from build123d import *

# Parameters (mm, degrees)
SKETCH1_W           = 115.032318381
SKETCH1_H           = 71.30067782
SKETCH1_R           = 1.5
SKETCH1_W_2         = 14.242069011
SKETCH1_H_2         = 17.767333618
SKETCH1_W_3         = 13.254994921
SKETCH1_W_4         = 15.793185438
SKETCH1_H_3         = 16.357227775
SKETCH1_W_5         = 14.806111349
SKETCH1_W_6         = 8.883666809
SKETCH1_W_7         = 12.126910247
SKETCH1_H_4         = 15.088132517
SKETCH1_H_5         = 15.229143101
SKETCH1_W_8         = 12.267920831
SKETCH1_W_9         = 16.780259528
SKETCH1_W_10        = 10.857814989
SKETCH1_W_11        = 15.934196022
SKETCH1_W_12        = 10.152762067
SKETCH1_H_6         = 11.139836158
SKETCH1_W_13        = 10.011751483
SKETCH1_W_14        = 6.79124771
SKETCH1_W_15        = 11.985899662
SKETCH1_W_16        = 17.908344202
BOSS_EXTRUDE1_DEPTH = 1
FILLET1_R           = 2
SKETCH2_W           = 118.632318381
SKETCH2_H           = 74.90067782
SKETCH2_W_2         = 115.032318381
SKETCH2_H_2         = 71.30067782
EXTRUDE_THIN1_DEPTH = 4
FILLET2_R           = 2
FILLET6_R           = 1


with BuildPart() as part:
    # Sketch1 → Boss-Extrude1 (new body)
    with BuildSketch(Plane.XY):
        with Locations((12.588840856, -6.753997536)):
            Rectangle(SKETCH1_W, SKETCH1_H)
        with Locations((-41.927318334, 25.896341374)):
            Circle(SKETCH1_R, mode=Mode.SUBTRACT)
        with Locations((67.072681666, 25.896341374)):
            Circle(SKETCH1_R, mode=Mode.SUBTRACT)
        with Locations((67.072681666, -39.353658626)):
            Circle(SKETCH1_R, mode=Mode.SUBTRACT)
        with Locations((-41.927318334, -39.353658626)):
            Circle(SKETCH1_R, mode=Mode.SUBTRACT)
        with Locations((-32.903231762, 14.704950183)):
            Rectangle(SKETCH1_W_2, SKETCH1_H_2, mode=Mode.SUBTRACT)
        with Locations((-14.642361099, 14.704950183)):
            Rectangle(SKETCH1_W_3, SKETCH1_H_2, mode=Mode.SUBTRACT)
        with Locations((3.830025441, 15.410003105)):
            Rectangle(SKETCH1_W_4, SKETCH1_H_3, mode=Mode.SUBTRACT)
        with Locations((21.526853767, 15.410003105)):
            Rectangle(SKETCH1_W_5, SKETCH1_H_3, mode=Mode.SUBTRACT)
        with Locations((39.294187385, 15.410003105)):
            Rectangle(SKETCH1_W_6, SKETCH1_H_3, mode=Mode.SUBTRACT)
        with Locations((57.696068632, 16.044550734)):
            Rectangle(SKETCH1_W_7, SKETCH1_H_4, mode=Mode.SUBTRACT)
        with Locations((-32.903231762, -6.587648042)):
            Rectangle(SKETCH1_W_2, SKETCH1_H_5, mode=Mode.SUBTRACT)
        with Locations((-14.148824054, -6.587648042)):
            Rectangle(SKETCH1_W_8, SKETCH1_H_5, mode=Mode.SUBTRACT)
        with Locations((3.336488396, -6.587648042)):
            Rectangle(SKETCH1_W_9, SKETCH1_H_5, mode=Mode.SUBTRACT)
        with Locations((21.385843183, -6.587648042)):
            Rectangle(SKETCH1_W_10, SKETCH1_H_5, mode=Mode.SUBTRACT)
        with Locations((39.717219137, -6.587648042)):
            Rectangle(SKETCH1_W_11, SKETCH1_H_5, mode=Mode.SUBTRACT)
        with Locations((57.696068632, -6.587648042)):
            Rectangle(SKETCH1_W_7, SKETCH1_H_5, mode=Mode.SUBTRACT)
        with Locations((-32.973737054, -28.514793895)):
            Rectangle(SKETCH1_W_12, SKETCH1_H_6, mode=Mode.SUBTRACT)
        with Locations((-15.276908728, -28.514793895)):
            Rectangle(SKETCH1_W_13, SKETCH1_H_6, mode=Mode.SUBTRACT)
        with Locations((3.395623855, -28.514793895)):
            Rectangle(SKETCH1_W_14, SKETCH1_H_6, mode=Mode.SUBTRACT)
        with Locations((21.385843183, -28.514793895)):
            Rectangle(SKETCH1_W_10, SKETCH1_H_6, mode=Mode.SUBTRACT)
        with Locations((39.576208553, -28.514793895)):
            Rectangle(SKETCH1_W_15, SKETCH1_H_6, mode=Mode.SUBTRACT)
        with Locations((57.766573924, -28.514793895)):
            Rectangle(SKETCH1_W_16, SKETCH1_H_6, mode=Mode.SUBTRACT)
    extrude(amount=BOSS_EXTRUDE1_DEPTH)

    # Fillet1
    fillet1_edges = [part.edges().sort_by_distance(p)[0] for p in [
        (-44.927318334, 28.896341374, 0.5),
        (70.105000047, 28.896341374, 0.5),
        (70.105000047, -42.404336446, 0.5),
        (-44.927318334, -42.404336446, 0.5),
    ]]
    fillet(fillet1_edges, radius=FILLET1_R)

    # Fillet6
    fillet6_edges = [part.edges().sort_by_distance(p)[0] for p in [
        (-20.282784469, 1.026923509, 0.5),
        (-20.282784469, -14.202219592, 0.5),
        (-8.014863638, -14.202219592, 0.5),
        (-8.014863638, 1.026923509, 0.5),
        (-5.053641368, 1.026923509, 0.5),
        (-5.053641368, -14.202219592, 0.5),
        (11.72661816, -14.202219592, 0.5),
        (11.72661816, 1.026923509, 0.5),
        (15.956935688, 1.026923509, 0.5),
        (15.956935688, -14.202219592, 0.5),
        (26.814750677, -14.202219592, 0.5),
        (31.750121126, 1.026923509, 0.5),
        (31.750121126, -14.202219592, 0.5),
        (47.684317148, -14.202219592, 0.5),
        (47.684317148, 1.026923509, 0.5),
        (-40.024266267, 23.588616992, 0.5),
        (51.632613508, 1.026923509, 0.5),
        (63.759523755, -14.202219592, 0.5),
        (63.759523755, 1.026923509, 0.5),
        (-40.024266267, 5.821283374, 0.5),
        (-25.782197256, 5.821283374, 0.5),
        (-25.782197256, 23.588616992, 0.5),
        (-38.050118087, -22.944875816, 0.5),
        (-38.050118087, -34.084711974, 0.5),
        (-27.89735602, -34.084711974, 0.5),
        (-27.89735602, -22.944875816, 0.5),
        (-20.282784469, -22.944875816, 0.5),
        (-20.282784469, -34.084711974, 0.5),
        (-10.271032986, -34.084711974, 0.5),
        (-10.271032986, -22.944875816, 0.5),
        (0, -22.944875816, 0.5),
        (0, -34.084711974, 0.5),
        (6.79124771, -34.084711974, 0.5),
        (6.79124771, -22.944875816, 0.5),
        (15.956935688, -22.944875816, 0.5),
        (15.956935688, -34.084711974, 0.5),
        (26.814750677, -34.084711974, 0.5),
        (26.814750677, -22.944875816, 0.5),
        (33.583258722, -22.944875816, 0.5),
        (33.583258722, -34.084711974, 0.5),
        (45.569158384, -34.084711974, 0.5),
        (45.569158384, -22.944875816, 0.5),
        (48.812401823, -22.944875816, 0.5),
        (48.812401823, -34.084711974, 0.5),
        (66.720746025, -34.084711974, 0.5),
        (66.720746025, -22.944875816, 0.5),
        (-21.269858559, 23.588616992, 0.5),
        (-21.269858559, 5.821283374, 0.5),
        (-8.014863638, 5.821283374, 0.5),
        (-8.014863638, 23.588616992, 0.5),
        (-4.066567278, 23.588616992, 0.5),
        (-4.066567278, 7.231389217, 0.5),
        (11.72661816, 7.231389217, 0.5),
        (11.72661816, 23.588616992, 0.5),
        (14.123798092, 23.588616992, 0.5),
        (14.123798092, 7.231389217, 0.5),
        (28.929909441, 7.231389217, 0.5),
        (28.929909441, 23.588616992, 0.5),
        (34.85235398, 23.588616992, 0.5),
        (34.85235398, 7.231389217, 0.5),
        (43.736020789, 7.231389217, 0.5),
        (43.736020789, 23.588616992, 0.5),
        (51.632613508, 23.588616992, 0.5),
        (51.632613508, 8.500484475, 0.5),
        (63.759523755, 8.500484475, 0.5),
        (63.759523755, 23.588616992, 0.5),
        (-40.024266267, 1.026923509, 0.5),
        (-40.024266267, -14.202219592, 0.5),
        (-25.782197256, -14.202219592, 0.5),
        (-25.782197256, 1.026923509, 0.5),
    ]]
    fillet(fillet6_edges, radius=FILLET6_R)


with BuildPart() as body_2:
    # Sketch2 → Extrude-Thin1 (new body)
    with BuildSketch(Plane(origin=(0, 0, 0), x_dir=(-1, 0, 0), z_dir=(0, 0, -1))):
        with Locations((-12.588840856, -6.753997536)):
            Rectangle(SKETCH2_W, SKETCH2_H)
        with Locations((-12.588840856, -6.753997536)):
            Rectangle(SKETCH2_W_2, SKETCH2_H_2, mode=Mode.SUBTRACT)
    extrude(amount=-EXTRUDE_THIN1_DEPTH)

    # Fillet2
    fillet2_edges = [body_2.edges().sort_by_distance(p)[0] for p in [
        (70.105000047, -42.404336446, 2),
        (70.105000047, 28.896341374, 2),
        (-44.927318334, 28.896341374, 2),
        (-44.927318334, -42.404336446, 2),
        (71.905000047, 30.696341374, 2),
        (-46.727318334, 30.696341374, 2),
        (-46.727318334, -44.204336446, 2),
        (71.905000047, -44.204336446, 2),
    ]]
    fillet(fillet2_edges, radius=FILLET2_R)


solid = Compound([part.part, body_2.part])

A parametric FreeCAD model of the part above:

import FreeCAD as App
import Part
import Sketcher
Q = App.Units.Quantity


def edges_at(feature, points):
    """Names of the edges that pass closest to the given points."""
    edges = feature.Shape.Edges
    near = lambda p: min(range(len(edges)), key=lambda i: edges[i].distToShape(Part.Vertex(*p))[0])
    return sorted({f"Edge{near(p) + 1}" for p in points})

doc = App.newDocument("Part")
body = doc.addObject("PartDesign::Body", "Body")

# Sketch on XY plane
sketch1 = body.newObject("Sketcher::SketchObject", "Sketch")
sketch1.AttachmentSupport = (doc.getObject("XY_Plane"), [""])
sketch1.MapMode = "FlatFace"
sketch1.addGeometry([
    Part.LineSegment(App.Vector(-44.927318, 28.896341, 0), App.Vector(-44.927318, -42.404336, 0)),  # 0
    Part.LineSegment(App.Vector(-44.927318, -42.404336, 0), App.Vector(70.105, -42.404336, 0)),  # 1
    Part.LineSegment(App.Vector(70.105, -42.404336, 0), App.Vector(70.105, 28.896341, 0)),  # 2
    Part.LineSegment(App.Vector(70.105, 28.896341, 0), App.Vector(-44.927318, 28.896341, 0)),  # 3
    Part.Circle(App.Vector(-41.927318, -39.353659, 0), App.Vector(0, 0, 1), 1.5),  # 4
    Part.LineSegment(App.Vector(-27.897356, -34.084712, 0), App.Vector(-38.050118, -34.084712, 0)),  # 5
    Part.LineSegment(App.Vector(-38.050118, -34.084712, 0), App.Vector(-38.050118, -22.944876, 0)),  # 6
    Part.LineSegment(App.Vector(-38.050118, -22.944876, 0), App.Vector(-27.897356, -22.944876, 0)),  # 7
    Part.LineSegment(App.Vector(-27.897356, -22.944876, 0), App.Vector(-27.897356, -34.084712, 0)),  # 8
    Part.LineSegment(App.Vector(-10.271033, -34.084712, 0), App.Vector(-20.282784, -34.084712, 0)),  # 9
    Part.LineSegment(App.Vector(-20.282784, -34.084712, 0), App.Vector(-20.282784, -22.944876, 0)),  # 10
    Part.LineSegment(App.Vector(-20.282784, -22.944876, 0), App.Vector(-10.271033, -22.944876, 0)),  # 11
    Part.LineSegment(App.Vector(-10.271033, -22.944876, 0), App.Vector(-10.271033, -34.084712, 0)),  # 12
    Part.LineSegment(App.Vector(6.791248, -34.084712, 0), App.Vector(0, -34.084712, 0)),  # 13
    Part.LineSegment(App.Vector(0, -34.084712, 0), App.Vector(0, -22.944876, 0)),  # 14
    Part.LineSegment(App.Vector(0, -22.944876, 0), App.Vector(6.791248, -22.944876, 0)),  # 15
    Part.LineSegment(App.Vector(6.791248, -22.944876, 0), App.Vector(6.791248, -34.084712, 0)),  # 16
    Part.LineSegment(App.Vector(26.814751, -34.084712, 0), App.Vector(15.956936, -34.084712, 0)),  # 17
    Part.LineSegment(App.Vector(15.956936, -34.084712, 0), App.Vector(15.956936, -22.944876, 0)),  # 18
    Part.LineSegment(App.Vector(15.956936, -22.944876, 0), App.Vector(26.814751, -22.944876, 0)),  # 19
    Part.LineSegment(App.Vector(26.814751, -22.944876, 0), App.Vector(26.814751, -34.084712, 0)),  # 20
    Part.LineSegment(App.Vector(45.569158, -34.084712, 0), App.Vector(33.583259, -34.084712, 0)),  # 21
    Part.LineSegment(App.Vector(33.583259, -34.084712, 0), App.Vector(33.583259, -22.944876, 0)),  # 22
    Part.LineSegment(App.Vector(33.583259, -22.944876, 0), App.Vector(45.569158, -22.944876, 0)),  # 23
    Part.LineSegment(App.Vector(45.569158, -22.944876, 0), App.Vector(45.569158, -34.084712, 0)),  # 24
    Part.Circle(App.Vector(67.072682, -39.353659, 0), App.Vector(0, 0, 1), 1.5),  # 25
    Part.LineSegment(App.Vector(66.720746, -34.084712, 0), App.Vector(48.812402, -34.084712, 0)),  # 26
    Part.LineSegment(App.Vector(48.812402, -34.084712, 0), App.Vector(48.812402, -22.944876, 0)),  # 27
    Part.LineSegment(App.Vector(48.812402, -22.944876, 0), App.Vector(66.720746, -22.944876, 0)),  # 28
    Part.LineSegment(App.Vector(66.720746, -22.944876, 0), App.Vector(66.720746, -34.084712, 0)),  # 29
    Part.LineSegment(App.Vector(-25.782197, -14.20222, 0), App.Vector(-40.024266, -14.20222, 0)),  # 30
    Part.LineSegment(App.Vector(-40.024266, -14.20222, 0), App.Vector(-40.024266, 1.026924, 0)),  # 31
    Part.LineSegment(App.Vector(-40.024266, 1.026924, 0), App.Vector(-25.782197, 1.026924, 0)),  # 32
    Part.LineSegment(App.Vector(-25.782197, 1.026924, 0), App.Vector(-25.782197, -14.20222, 0)),  # 33
    Part.LineSegment(App.Vector(-8.014864, -14.20222, 0), App.Vector(-20.282784, -14.20222, 0)),  # 34
    Part.LineSegment(App.Vector(-20.282784, -14.20222, 0), App.Vector(-20.282784, 1.026924, 0)),  # 35
    Part.LineSegment(App.Vector(-20.282784, 1.026924, 0), App.Vector(-8.014864, 1.026924, 0)),  # 36
    Part.LineSegment(App.Vector(-8.014864, 1.026924, 0), App.Vector(-8.014864, -14.20222, 0)),  # 37
    Part.LineSegment(App.Vector(11.726618, -14.20222, 0), App.Vector(-5.053641, -14.20222, 0)),  # 38
    Part.LineSegment(App.Vector(-5.053641, -14.20222, 0), App.Vector(-5.053641, 1.026924, 0)),  # 39
    Part.LineSegment(App.Vector(-5.053641, 1.026924, 0), App.Vector(11.726618, 1.026924, 0)),  # 40
    Part.LineSegment(App.Vector(11.726618, 1.026924, 0), App.Vector(11.726618, -14.20222, 0)),  # 41
    Part.LineSegment(App.Vector(-25.782197, 5.821283, 0), App.Vector(-40.024266, 5.821283, 0)),  # 42
    Part.LineSegment(App.Vector(-40.024266, 5.821283, 0), App.Vector(-40.024266, 23.588617, 0)),  # 43
    Part.LineSegment(App.Vector(-40.024266, 23.588617, 0), App.Vector(-25.782197, 23.588617, 0)),  # 44
    Part.LineSegment(App.Vector(-25.782197, 23.588617, 0), App.Vector(-25.782197, 5.821283, 0)),  # 45
    Part.Circle(App.Vector(-41.927318, 25.896341, 0), App.Vector(0, 0, 1), 1.5),  # 46
    Part.LineSegment(App.Vector(-8.014864, 5.821283, 0), App.Vector(-21.269859, 5.821283, 0)),  # 47
    Part.LineSegment(App.Vector(-21.269859, 5.821283, 0), App.Vector(-21.269859, 23.588617, 0)),  # 48
    Part.LineSegment(App.Vector(-21.269859, 23.588617, 0), App.Vector(-8.014864, 23.588617, 0)),  # 49
    Part.LineSegment(App.Vector(-8.014864, 23.588617, 0), App.Vector(-8.014864, 5.821283, 0)),  # 50
    Part.LineSegment(App.Vector(11.726618, 7.231389, 0), App.Vector(-4.066567, 7.231389, 0)),  # 51
    Part.LineSegment(App.Vector(-4.066567, 7.231389, 0), App.Vector(-4.066567, 23.588617, 0)),  # 52
    Part.LineSegment(App.Vector(-4.066567, 23.588617, 0), App.Vector(11.726618, 23.588617, 0)),  # 53
    Part.LineSegment(App.Vector(11.726618, 23.588617, 0), App.Vector(11.726618, 7.231389, 0)),  # 54
    Part.LineSegment(App.Vector(26.814751, -14.20222, 0), App.Vector(15.956936, -14.20222, 0)),  # 55
    Part.LineSegment(App.Vector(15.956936, -14.20222, 0), App.Vector(15.956936, 1.026924, 0)),  # 56
    Part.LineSegment(App.Vector(15.956936, 1.026924, 0), App.Vector(26.814751, 1.026924, 0)),  # 57
    Part.LineSegment(App.Vector(26.814751, 1.026924, 0), App.Vector(26.814751, -14.20222, 0)),  # 58
    Part.LineSegment(App.Vector(47.684317, -14.20222, 0), App.Vector(31.750121, -14.20222, 0)),  # 59
    Part.LineSegment(App.Vector(31.750121, -14.20222, 0), App.Vector(31.750121, 1.026924, 0)),  # 60
    Part.LineSegment(App.Vector(31.750121, 1.026924, 0), App.Vector(47.684317, 1.026924, 0)),  # 61
    Part.LineSegment(App.Vector(47.684317, 1.026924, 0), App.Vector(47.684317, -14.20222, 0)),  # 62
    Part.LineSegment(App.Vector(63.759524, -14.20222, 0), App.Vector(51.632614, -14.20222, 0)),  # 63
    Part.LineSegment(App.Vector(51.632614, -14.20222, 0), App.Vector(51.632614, 1.026924, 0)),  # 64
    Part.LineSegment(App.Vector(51.632614, 1.026924, 0), App.Vector(63.759524, 1.026924, 0)),  # 65
    Part.LineSegment(App.Vector(63.759524, 1.026924, 0), App.Vector(63.759524, -14.20222, 0)),  # 66
    Part.LineSegment(App.Vector(28.929909, 7.231389, 0), App.Vector(14.123798, 7.231389, 0)),  # 67
    Part.LineSegment(App.Vector(14.123798, 7.231389, 0), App.Vector(14.123798, 23.588617, 0)),  # 68
    Part.LineSegment(App.Vector(14.123798, 23.588617, 0), App.Vector(28.929909, 23.588617, 0)),  # 69
    Part.LineSegment(App.Vector(28.929909, 23.588617, 0), App.Vector(28.929909, 7.231389, 0)),  # 70
    Part.LineSegment(App.Vector(43.736021, 7.231389, 0), App.Vector(34.852354, 7.231389, 0)),  # 71
    Part.LineSegment(App.Vector(34.852354, 7.231389, 0), App.Vector(34.852354, 23.588617, 0)),  # 72
    Part.LineSegment(App.Vector(34.852354, 23.588617, 0), App.Vector(43.736021, 23.588617, 0)),  # 73
    Part.LineSegment(App.Vector(43.736021, 23.588617, 0), App.Vector(43.736021, 7.231389, 0)),  # 74
    Part.LineSegment(App.Vector(63.759524, 8.500484, 0), App.Vector(51.632614, 8.500484, 0)),  # 75
    Part.LineSegment(App.Vector(51.632614, 8.500484, 0), App.Vector(51.632614, 23.588617, 0)),  # 76
    Part.LineSegment(App.Vector(51.632614, 23.588617, 0), App.Vector(63.759524, 23.588617, 0)),  # 77
    Part.LineSegment(App.Vector(63.759524, 23.588617, 0), App.Vector(63.759524, 8.500484, 0)),  # 78
    Part.Circle(App.Vector(67.072682, 25.896341, 0), App.Vector(0, 0, 1), 1.5),  # 79
], False)
sketch1.addConstraint([
    Sketcher.Constraint("Coincident", 0, 2, 1, 1),
    Sketcher.Constraint("Coincident", 1, 2, 2, 1),
    Sketcher.Constraint("Coincident", 2, 2, 3, 1),
    Sketcher.Constraint("Coincident", 3, 2, 0, 1),
    Sketcher.Constraint("Coincident", 5, 2, 6, 1),
    Sketcher.Constraint("Coincident", 6, 2, 7, 1),
    Sketcher.Constraint("Coincident", 7, 2, 8, 1),
    Sketcher.Constraint("Coincident", 8, 2, 5, 1),
    Sketcher.Constraint("Coincident", 9, 2, 10, 1),
    Sketcher.Constraint("Coincident", 10, 2, 11, 1),
    Sketcher.Constraint("Coincident", 11, 2, 12, 1),
    Sketcher.Constraint("Coincident", 12, 2, 9, 1),
    Sketcher.Constraint("Coincident", 13, 2, 14, 1),
    Sketcher.Constraint("Coincident", 14, 2, 15, 1),
    Sketcher.Constraint("Coincident", 15, 2, 16, 1),
    Sketcher.Constraint("Coincident", 16, 2, 13, 1),
    Sketcher.Constraint("Coincident", 17, 2, 18, 1),
    Sketcher.Constraint("Coincident", 18, 2, 19, 1),
    Sketcher.Constraint("Coincident", 19, 2, 20, 1),
    Sketcher.Constraint("Coincident", 20, 2, 17, 1),
    Sketcher.Constraint("Coincident", 21, 2, 22, 1),
    Sketcher.Constraint("Coincident", 22, 2, 23, 1),
    Sketcher.Constraint("Coincident", 23, 2, 24, 1),
    Sketcher.Constraint("Coincident", 24, 2, 21, 1),
    Sketcher.Constraint("Coincident", 26, 2, 27, 1),
    Sketcher.Constraint("Coincident", 27, 2, 28, 1),
    Sketcher.Constraint("Coincident", 28, 2, 29, 1),
    Sketcher.Constraint("Coincident", 29, 2, 26, 1),
    Sketcher.Constraint("Coincident", 30, 2, 31, 1),
    Sketcher.Constraint("Coincident", 31, 2, 32, 1),
    Sketcher.Constraint("Coincident", 32, 2, 33, 1),
    Sketcher.Constraint("Coincident", 33, 2, 30, 1),
    Sketcher.Constraint("Coincident", 34, 2, 35, 1),
    Sketcher.Constraint("Coincident", 35, 2, 36, 1),
    Sketcher.Constraint("Coincident", 36, 2, 37, 1),
    Sketcher.Constraint("Coincident", 37, 2, 34, 1),
    Sketcher.Constraint("Coincident", 38, 2, 39, 1),
    Sketcher.Constraint("Coincident", 39, 2, 40, 1),
    Sketcher.Constraint("Coincident", 40, 2, 41, 1),
    Sketcher.Constraint("Coincident", 41, 2, 38, 1),
    Sketcher.Constraint("Coincident", 42, 2, 43, 1),
    Sketcher.Constraint("Coincident", 43, 2, 44, 1),
    Sketcher.Constraint("Coincident", 44, 2, 45, 1),
    Sketcher.Constraint("Coincident", 45, 2, 42, 1),
    Sketcher.Constraint("Coincident", 47, 2, 48, 1),
    Sketcher.Constraint("Coincident", 48, 2, 49, 1),
    Sketcher.Constraint("Coincident", 49, 2, 50, 1),
    Sketcher.Constraint("Coincident", 50, 2, 47, 1),
    Sketcher.Constraint("Coincident", 51, 2, 52, 1),
    Sketcher.Constraint("Coincident", 52, 2, 53, 1),
    Sketcher.Constraint("Coincident", 53, 2, 54, 1),
    Sketcher.Constraint("Coincident", 54, 2, 51, 1),
    Sketcher.Constraint("Coincident", 55, 2, 56, 1),
    Sketcher.Constraint("Coincident", 56, 2, 57, 1),
    Sketcher.Constraint("Coincident", 57, 2, 58, 1),
    Sketcher.Constraint("Coincident", 58, 2, 55, 1),
    Sketcher.Constraint("Coincident", 59, 2, 60, 1),
    Sketcher.Constraint("Coincident", 60, 2, 61, 1),
    Sketcher.Constraint("Coincident", 61, 2, 62, 1),
    Sketcher.Constraint("Coincident", 62, 2, 59, 1),
    Sketcher.Constraint("Coincident", 63, 2, 64, 1),
    Sketcher.Constraint("Coincident", 64, 2, 65, 1),
    Sketcher.Constraint("Coincident", 65, 2, 66, 1),
    Sketcher.Constraint("Coincident", 66, 2, 63, 1),
    Sketcher.Constraint("Coincident", 67, 2, 68, 1),
    Sketcher.Constraint("Coincident", 68, 2, 69, 1),
    Sketcher.Constraint("Coincident", 69, 2, 70, 1),
    Sketcher.Constraint("Coincident", 70, 2, 67, 1),
    Sketcher.Constraint("Coincident", 71, 2, 72, 1),
    Sketcher.Constraint("Coincident", 72, 2, 73, 1),
    Sketcher.Constraint("Coincident", 73, 2, 74, 1),
    Sketcher.Constraint("Coincident", 74, 2, 71, 1),
    Sketcher.Constraint("Coincident", 75, 2, 76, 1),
    Sketcher.Constraint("Coincident", 76, 2, 77, 1),
    Sketcher.Constraint("Coincident", 77, 2, 78, 1),
    Sketcher.Constraint("Coincident", 78, 2, 75, 1),
    Sketcher.Constraint("Vertical", 0),
    Sketcher.Constraint("Horizontal", 1),
    Sketcher.Constraint("Vertical", 2),
    Sketcher.Constraint("Horizontal", 3),
    Sketcher.Constraint("Horizontal", 5),
    Sketcher.Constraint("Vertical", 6),
    Sketcher.Constraint("Horizontal", 7),
    Sketcher.Constraint("Vertical", 8),
    Sketcher.Constraint("Horizontal", 9),
    Sketcher.Constraint("Vertical", 10),
    Sketcher.Constraint("Horizontal", 11),
    Sketcher.Constraint("Vertical", 12),
    Sketcher.Constraint("Horizontal", 13),
    Sketcher.Constraint("Vertical", 14),
    Sketcher.Constraint("Horizontal", 15),
    Sketcher.Constraint("Vertical", 16),
    Sketcher.Constraint("Horizontal", 17),
    Sketcher.Constraint("Vertical", 18),
    Sketcher.Constraint("Horizontal", 19),
    Sketcher.Constraint("Vertical", 20),
    Sketcher.Constraint("Horizontal", 21),
    Sketcher.Constraint("Vertical", 22),
    Sketcher.Constraint("Horizontal", 23),
    Sketcher.Constraint("Vertical", 24),
    Sketcher.Constraint("Horizontal", 26),
    Sketcher.Constraint("Vertical", 27),
    Sketcher.Constraint("Horizontal", 28),
    Sketcher.Constraint("Vertical", 29),
    Sketcher.Constraint("Horizontal", 30),
    Sketcher.Constraint("Vertical", 31),
    Sketcher.Constraint("Horizontal", 32),
    Sketcher.Constraint("Vertical", 33),
    Sketcher.Constraint("Horizontal", 34),
    Sketcher.Constraint("Vertical", 35),
    Sketcher.Constraint("Horizontal", 36),
    Sketcher.Constraint("Vertical", 37),
    Sketcher.Constraint("Horizontal", 38),
    Sketcher.Constraint("Vertical", 39),
    Sketcher.Constraint("Horizontal", 40),
    Sketcher.Constraint("Vertical", 41),
    Sketcher.Constraint("Horizontal", 42),
    Sketcher.Constraint("Vertical", 43),
    Sketcher.Constraint("Horizontal", 44),
    Sketcher.Constraint("Vertical", 45),
    Sketcher.Constraint("Horizontal", 47),
    Sketcher.Constraint("Vertical", 48),
    Sketcher.Constraint("Horizontal", 49),
    Sketcher.Constraint("Vertical", 50),
    Sketcher.Constraint("Horizontal", 51),
    Sketcher.Constraint("Vertical", 52),
    Sketcher.Constraint("Horizontal", 53),
    Sketcher.Constraint("Vertical", 54),
    Sketcher.Constraint("Horizontal", 55),
    Sketcher.Constraint("Vertical", 56),
    Sketcher.Constraint("Horizontal", 57),
    Sketcher.Constraint("Vertical", 58),
    Sketcher.Constraint("Horizontal", 59),
    Sketcher.Constraint("Vertical", 60),
    Sketcher.Constraint("Horizontal", 61),
    Sketcher.Constraint("Vertical", 62),
    Sketcher.Constraint("Horizontal", 63),
    Sketcher.Constraint("Vertical", 64),
    Sketcher.Constraint("Horizontal", 65),
    Sketcher.Constraint("Vertical", 66),
    Sketcher.Constraint("Horizontal", 67),
    Sketcher.Constraint("Vertical", 68),
    Sketcher.Constraint("Horizontal", 69),
    Sketcher.Constraint("Vertical", 70),
    Sketcher.Constraint("Horizontal", 71),
    Sketcher.Constraint("Vertical", 72),
    Sketcher.Constraint("Horizontal", 73),
    Sketcher.Constraint("Vertical", 74),
    Sketcher.Constraint("Horizontal", 75),
    Sketcher.Constraint("Vertical", 76),
    Sketcher.Constraint("Horizontal", 77),
    Sketcher.Constraint("Vertical", 78),
    Sketcher.Constraint("Equal", 4, 25),
    Sketcher.Constraint("Equal", 25, 46),
    Sketcher.Constraint("Equal", 46, 79),
    Sketcher.Constraint("PointOnObject", 13, 2, -2),
    Sketcher.Constraint("Horizontal", 4, 3, 25, 3),
    Sketcher.Constraint("Horizontal", 46, 3, 79, 3),
    Sketcher.Constraint("Horizontal", 8, 2, 9, 2),
    Sketcher.Constraint("Horizontal", 7, 2, 10, 2),
    Sketcher.Constraint("Horizontal", 12, 2, 13, 2),
    Sketcher.Constraint("Horizontal", 11, 2, 14, 2),
    Sketcher.Constraint("Horizontal", 16, 2, 17, 2),
    Sketcher.Constraint("Horizontal", 15, 2, 18, 2),
    Sketcher.Constraint("Horizontal", 20, 2, 21, 2),
    Sketcher.Constraint("Horizontal", 19, 2, 22, 2),
    Sketcher.Constraint("Horizontal", 24, 2, 26, 2),
    Sketcher.Constraint("Horizontal", 23, 2, 27, 2),
    Sketcher.Constraint("Horizontal", 33, 2, 34, 2),
    Sketcher.Constraint("Horizontal", 32, 2, 35, 2),
    Sketcher.Constraint("Horizontal", 37, 2, 38, 2),
    Sketcher.Constraint("Horizontal", 36, 2, 39, 2),
    Sketcher.Constraint("Horizontal", 45, 2, 47, 2),
    Sketcher.Constraint("Horizontal", 44, 2, 48, 2),
    Sketcher.Constraint("Horizontal", 49, 2, 52, 2),
    Sketcher.Constraint("Horizontal", 41, 2, 55, 2),
    Sketcher.Constraint("Horizontal", 40, 2, 56, 2),
    Sketcher.Constraint("Horizontal", 58, 2, 59, 2),
    Sketcher.Constraint("Horizontal", 57, 2, 60, 2),
    Sketcher.Constraint("Horizontal", 62, 2, 63, 2),
    Sketcher.Constraint("Horizontal", 61, 2, 64, 2),
    Sketcher.Constraint("Horizontal", 54, 2, 67, 2),
    Sketcher.Constraint("Horizontal", 53, 2, 68, 2),
    Sketcher.Constraint("Horizontal", 70, 2, 71, 2),
    Sketcher.Constraint("Horizontal", 69, 2, 72, 2),
    Sketcher.Constraint("Horizontal", 73, 2, 76, 2),
    Sketcher.Constraint("Vertical", 4, 3, 46, 3),
    Sketcher.Constraint("Vertical", 25, 3, 79, 3),
    Sketcher.Constraint("Vertical", 10, 2, 34, 2),
    Sketcher.Constraint("Vertical", 31, 2, 42, 2),
    Sketcher.Constraint("Vertical", 33, 2, 44, 2),
    Sketcher.Constraint("Vertical", 37, 2, 49, 2),
    Sketcher.Constraint("Vertical", 41, 2, 53, 2),
    Sketcher.Constraint("Vertical", 18, 2, 55, 2),
    Sketcher.Constraint("Vertical", 20, 2, 57, 2),
    Sketcher.Constraint("Vertical", 64, 2, 75, 2),
    Sketcher.Constraint("Vertical", 66, 2, 77, 2),
    Sketcher.Constraint("Diameter", 4, Q("3 mm")),
    Sketcher.Constraint("DistanceX", 21, 2, 21, 1, Q("11.9859 mm")),
    Sketcher.Constraint("DistanceX", -1, 1, 1, 2, Q("70.105 mm")),
    Sketcher.Constraint("DistanceX", 1, 1, 1, 2, Q("115.032318 mm")),
    Sketcher.Constraint("DistanceX", 9, 2, 9, 1, Q("10.011751 mm")),
    Sketcher.Constraint("DistanceX", 30, 2, 30, 1, Q("14.242069 mm")),
    Sketcher.Constraint("DistanceX", 34, 2, 34, 1, Q("12.267921 mm")),
    Sketcher.Constraint("DistanceX", 38, 2, 38, 1, Q("16.78026 mm")),
    Sketcher.Constraint("DistanceX", 63, 2, 63, 1, Q("12.12691 mm")),
    Sketcher.Constraint("DistanceX", 67, 2, 67, 1, Q("14.806111 mm")),
    Sketcher.Constraint("DistanceX", -1, 1, 26, 2, Q("48.812402 mm")),
    Sketcher.Constraint("DistanceX", -1, 1, 67, 2, Q("14.123798 mm")),
    Sketcher.Constraint("DistanceX", 5, 2, 5, 1, Q("10.152762 mm")),
    Sketcher.Constraint("DistanceX", 13, 2, 13, 1, Q("6.791248 mm")),
    Sketcher.Constraint("DistanceX", 17, 2, 17, 1, Q("10.857815 mm")),
    Sketcher.Constraint("DistanceX", 26, 2, 26, 1, Q("17.908344 mm")),
    Sketcher.Constraint("DistanceX", 47, 2, 47, 1, Q("13.254995 mm")),
    Sketcher.Constraint("DistanceX", 51, 2, 51, 1, Q("15.793185 mm")),
    Sketcher.Constraint("DistanceX", 59, 2, 59, 1, Q("15.934196 mm")),
    Sketcher.Constraint("DistanceX", 71, 2, 71, 1, Q("8.883667 mm")),
    Sketcher.Constraint("DistanceY", 0, 2, 0, 1, Q("71.300678 mm")),
    Sketcher.Constraint("DistanceY", 6, 1, 6, 2, Q("11.139836 mm")),
    Sketcher.Constraint("DistanceY", 31, 1, 31, 2, Q("15.229143 mm")),
    Sketcher.Constraint("DistanceY", 43, 1, 43, 2, Q("17.767334 mm")),
    Sketcher.Constraint("DistanceY", 52, 1, 52, 2, Q("16.357228 mm")),
    Sketcher.Constraint("DistanceY", 76, 1, 76, 2, Q("15.088133 mm")),
    Sketcher.Constraint("DistanceX", 4, 3, -1, 1, Q("41.927318 mm")),
    Sketcher.Constraint("DistanceY", 4, 3, -1, 1, Q("39.353659 mm")),
    Sketcher.Constraint("DistanceX", -1, 1, 25, 3, Q("67.072682 mm")),
    Sketcher.Constraint("DistanceY", -1, 1, 46, 3, Q("25.896341 mm")),
    Sketcher.Constraint("DistanceY", -1, 1, 2, 2, Q("28.896341 mm")),
    Sketcher.Constraint("DistanceX", 5, 2, -1, 1, Q("38.050118 mm")),
    Sketcher.Constraint("DistanceY", 5, 2, -1, 1, Q("34.084712 mm")),
    Sketcher.Constraint("DistanceX", -1, 1, 19, 2, Q("26.814751 mm")),
    Sketcher.Constraint("DistanceX", -1, 1, 21, 2, Q("33.583259 mm")),
    Sketcher.Constraint("DistanceY", 30, 2, -1, 1, Q("14.20222 mm")),
    Sketcher.Constraint("DistanceX", 38, 2, -1, 1, Q("5.053641 mm")),
    Sketcher.Constraint("DistanceX", 47, 2, -1, 1, Q("21.269859 mm")),
    Sketcher.Constraint("DistanceY", -1, 1, 51, 2, Q("7.231389 mm")),
    Sketcher.Constraint("DistanceX", -1, 1, 59, 2, Q("31.750121 mm")),
    Sketcher.Constraint("DistanceX", -1, 1, 73, 2, Q("43.736021 mm")),
    Sketcher.Constraint("DistanceX", 30, 2, -1, 1, Q("40.024266 mm")),
    Sketcher.Constraint("DistanceX", -1, 1, 63, 2, Q("51.632614 mm")),
])
pad1 = body.newObject("PartDesign::Pad", "Pad")
pad1.Profile = sketch1
pad1.Length = 1
doc.recompute()

fillet = body.newObject("PartDesign::Fillet", "Fillet")
fillet.Base = (pad1, edges_at(pad1, [
    (-44.927, 28.896, 0.5),
    (70.105, 28.896, 0.5),
    (70.105, -42.404, 0.5),
    (-44.927, -42.404, 0.5),
]))
fillet.Radius = 2
doc.recompute()

fillet2 = body.newObject("PartDesign::Fillet", "Fillet001")
fillet2.Base = (fillet, edges_at(fillet, [
    (-20.283, 1.027, 0.5),
    (-20.283, -14.202, 0.5),
    (-8.015, -14.202, 0.5),
    (-8.015, 1.027, 0.5),
    (-5.054, 1.027, 0.5),
    (-5.054, -14.202, 0.5),
    (11.727, -14.202, 0.5),
    (11.727, 1.027, 0.5),
    (15.957, 1.027, 0.5),
    (15.957, -14.202, 0.5),
    (26.815, -14.202, 0.5),
    (31.75, 1.027, 0.5),
    (31.75, -14.202, 0.5),
    (47.684, -14.202, 0.5),
    (47.684, 1.027, 0.5),
    (-40.024, 23.589, 0.5),
    (51.633, 1.027, 0.5),
    (63.76, -14.202, 0.5),
    (63.76, 1.027, 0.5),
    (-40.024, 5.821, 0.5),
    (-25.782, 5.821, 0.5),
    (-25.782, 23.589, 0.5),
    (-38.05, -22.945, 0.5),
    (-38.05, -34.085, 0.5),
    (-27.897, -34.085, 0.5),
    (-27.897, -22.945, 0.5),
    (-20.283, -22.945, 0.5),
    (-20.283, -34.085, 0.5),
    (-10.271, -34.085, 0.5),
    (-10.271, -22.945, 0.5),
    (0, -22.945, 0.5),
    (0, -34.085, 0.5),
    (6.791, -34.085, 0.5),
    (6.791, -22.945, 0.5),
    (15.957, -22.945, 0.5),
    (15.957, -34.085, 0.5),
    (26.815, -34.085, 0.5),
    (26.815, -22.945, 0.5),
    (33.583, -22.945, 0.5),
    (33.583, -34.085, 0.5),
    (45.569, -34.085, 0.5),
    (45.569, -22.945, 0.5),
    (48.812, -22.945, 0.5),
    (48.812, -34.085, 0.5),
    (66.721, -34.085, 0.5),
    (66.721, -22.945, 0.5),
    (-21.27, 23.589, 0.5),
    (-21.27, 5.821, 0.5),
    (-8.015, 5.821, 0.5),
    (-8.015, 23.589, 0.5),
    (-4.067, 23.589, 0.5),
    (-4.067, 7.231, 0.5),
    (11.727, 7.231, 0.5),
    (11.727, 23.589, 0.5),
    (14.124, 23.589, 0.5),
    (14.124, 7.231, 0.5),
    (28.93, 7.231, 0.5),
    (28.93, 23.589, 0.5),
    (34.852, 23.589, 0.5),
    (34.852, 7.231, 0.5),
    (43.736, 7.231, 0.5),
    (43.736, 23.589, 0.5),
    (51.633, 23.589, 0.5),
    (51.633, 8.5, 0.5),
    (63.76, 8.5, 0.5),
    (63.76, 23.589, 0.5),
    (-40.024, 1.027, 0.5),
    (-40.024, -14.202, 0.5),
    (-25.782, -14.202, 0.5),
    (-25.782, 1.027, 0.5),
]))
fillet2.Radius = 1
body2 = doc.addObject("PartDesign::Body", "Body001")

# Sketch on XY plane
sketch2 = body2.newObject("Sketcher::SketchObject", "Sketch001")
sketch2.AttachmentSupport = (doc.getObject("XY_Plane001"), [""])
sketch2.MapMode = "FlatFace"
sketch2.addGeometry([
    Part.LineSegment(App.Vector(71.905, 30.696341, 0), App.Vector(71.905, -44.204336, 0)),  # 0
    Part.LineSegment(App.Vector(71.905, -44.204336, 0), App.Vector(-46.727318, -44.204336, 0)),  # 1
    Part.LineSegment(App.Vector(-46.727318, -44.204336, 0), App.Vector(-46.727318, 30.696341, 0)),  # 2
    Part.LineSegment(App.Vector(-46.727318, 30.696341, 0), App.Vector(71.905, 30.696341, 0)),  # 3
    Part.LineSegment(App.Vector(-44.927318, -42.404336, 0), App.Vector(70.105, -42.404336, 0)),  # 4
    Part.LineSegment(App.Vector(70.105, -42.404336, 0), App.Vector(70.105, 28.896341, 0)),  # 5
    Part.LineSegment(App.Vector(70.105, 28.896341, 0), App.Vector(-44.927318, 28.896341, 0)),  # 6
    Part.LineSegment(App.Vector(-44.927318, 28.896341, 0), App.Vector(-44.927318, -42.404336, 0)),  # 7
], False)
sketch2.addConstraint([
    Sketcher.Constraint("Coincident", 0, 2, 1, 1),
    Sketcher.Constraint("Coincident", 1, 2, 2, 1),
    Sketcher.Constraint("Coincident", 2, 2, 3, 1),
    Sketcher.Constraint("Coincident", 3, 2, 0, 1),
    Sketcher.Constraint("Coincident", 4, 2, 5, 1),
    Sketcher.Constraint("Coincident", 5, 2, 6, 1),
    Sketcher.Constraint("Coincident", 6, 2, 7, 1),
    Sketcher.Constraint("Coincident", 7, 2, 4, 1),
    Sketcher.Constraint("Vertical", 0),
    Sketcher.Constraint("Horizontal", 1),
    Sketcher.Constraint("Vertical", 2),
    Sketcher.Constraint("Horizontal", 3),
    Sketcher.Constraint("Horizontal", 4),
    Sketcher.Constraint("Vertical", 5),
    Sketcher.Constraint("Horizontal", 6),
    Sketcher.Constraint("Vertical", 7),
    Sketcher.Constraint("DistanceX", 4, 2, 0, 2, Q("1.8 mm")),
    Sketcher.Constraint("DistanceY", 0, 2, 4, 2, Q("1.8 mm")),
    Sketcher.Constraint("DistanceY", 5, 2, 3, 2, Q("1.8 mm")),
    Sketcher.Constraint("DistanceX", 2, 2, 6, 2, Q("1.8 mm")),
    Sketcher.Constraint("DistanceX", -1, 1, 0, 2, Q("71.905 mm")),
    Sketcher.Constraint("DistanceX", 1, 2, 1, 1, Q("118.632318 mm")),
    Sketcher.Constraint("DistanceY", 0, 2, 0, 1, Q("74.900678 mm")),
    Sketcher.Constraint("DistanceY", -1, 1, 2, 2, Q("30.696341 mm")),
])
pad2 = body2.newObject("PartDesign::Pad", "Pad001")
pad2.Profile = sketch2
pad2.Length = 4
doc.recompute()

fillet3 = body2.newObject("PartDesign::Fillet", "Fillet002")
fillet3.Base = (pad2, edges_at(pad2, [
    (70.105, -42.404, 2),
    (70.105, 28.896, 2),
    (-44.927, 28.896, 2),
    (-44.927, -42.404, 2),
    (71.905, 30.696, 2),
    (-46.727, 30.696, 2),
    (-46.727, -44.204, 2),
    (71.905, -44.204, 2),
]))
fillet3.Radius = 2

doc.recompute()
